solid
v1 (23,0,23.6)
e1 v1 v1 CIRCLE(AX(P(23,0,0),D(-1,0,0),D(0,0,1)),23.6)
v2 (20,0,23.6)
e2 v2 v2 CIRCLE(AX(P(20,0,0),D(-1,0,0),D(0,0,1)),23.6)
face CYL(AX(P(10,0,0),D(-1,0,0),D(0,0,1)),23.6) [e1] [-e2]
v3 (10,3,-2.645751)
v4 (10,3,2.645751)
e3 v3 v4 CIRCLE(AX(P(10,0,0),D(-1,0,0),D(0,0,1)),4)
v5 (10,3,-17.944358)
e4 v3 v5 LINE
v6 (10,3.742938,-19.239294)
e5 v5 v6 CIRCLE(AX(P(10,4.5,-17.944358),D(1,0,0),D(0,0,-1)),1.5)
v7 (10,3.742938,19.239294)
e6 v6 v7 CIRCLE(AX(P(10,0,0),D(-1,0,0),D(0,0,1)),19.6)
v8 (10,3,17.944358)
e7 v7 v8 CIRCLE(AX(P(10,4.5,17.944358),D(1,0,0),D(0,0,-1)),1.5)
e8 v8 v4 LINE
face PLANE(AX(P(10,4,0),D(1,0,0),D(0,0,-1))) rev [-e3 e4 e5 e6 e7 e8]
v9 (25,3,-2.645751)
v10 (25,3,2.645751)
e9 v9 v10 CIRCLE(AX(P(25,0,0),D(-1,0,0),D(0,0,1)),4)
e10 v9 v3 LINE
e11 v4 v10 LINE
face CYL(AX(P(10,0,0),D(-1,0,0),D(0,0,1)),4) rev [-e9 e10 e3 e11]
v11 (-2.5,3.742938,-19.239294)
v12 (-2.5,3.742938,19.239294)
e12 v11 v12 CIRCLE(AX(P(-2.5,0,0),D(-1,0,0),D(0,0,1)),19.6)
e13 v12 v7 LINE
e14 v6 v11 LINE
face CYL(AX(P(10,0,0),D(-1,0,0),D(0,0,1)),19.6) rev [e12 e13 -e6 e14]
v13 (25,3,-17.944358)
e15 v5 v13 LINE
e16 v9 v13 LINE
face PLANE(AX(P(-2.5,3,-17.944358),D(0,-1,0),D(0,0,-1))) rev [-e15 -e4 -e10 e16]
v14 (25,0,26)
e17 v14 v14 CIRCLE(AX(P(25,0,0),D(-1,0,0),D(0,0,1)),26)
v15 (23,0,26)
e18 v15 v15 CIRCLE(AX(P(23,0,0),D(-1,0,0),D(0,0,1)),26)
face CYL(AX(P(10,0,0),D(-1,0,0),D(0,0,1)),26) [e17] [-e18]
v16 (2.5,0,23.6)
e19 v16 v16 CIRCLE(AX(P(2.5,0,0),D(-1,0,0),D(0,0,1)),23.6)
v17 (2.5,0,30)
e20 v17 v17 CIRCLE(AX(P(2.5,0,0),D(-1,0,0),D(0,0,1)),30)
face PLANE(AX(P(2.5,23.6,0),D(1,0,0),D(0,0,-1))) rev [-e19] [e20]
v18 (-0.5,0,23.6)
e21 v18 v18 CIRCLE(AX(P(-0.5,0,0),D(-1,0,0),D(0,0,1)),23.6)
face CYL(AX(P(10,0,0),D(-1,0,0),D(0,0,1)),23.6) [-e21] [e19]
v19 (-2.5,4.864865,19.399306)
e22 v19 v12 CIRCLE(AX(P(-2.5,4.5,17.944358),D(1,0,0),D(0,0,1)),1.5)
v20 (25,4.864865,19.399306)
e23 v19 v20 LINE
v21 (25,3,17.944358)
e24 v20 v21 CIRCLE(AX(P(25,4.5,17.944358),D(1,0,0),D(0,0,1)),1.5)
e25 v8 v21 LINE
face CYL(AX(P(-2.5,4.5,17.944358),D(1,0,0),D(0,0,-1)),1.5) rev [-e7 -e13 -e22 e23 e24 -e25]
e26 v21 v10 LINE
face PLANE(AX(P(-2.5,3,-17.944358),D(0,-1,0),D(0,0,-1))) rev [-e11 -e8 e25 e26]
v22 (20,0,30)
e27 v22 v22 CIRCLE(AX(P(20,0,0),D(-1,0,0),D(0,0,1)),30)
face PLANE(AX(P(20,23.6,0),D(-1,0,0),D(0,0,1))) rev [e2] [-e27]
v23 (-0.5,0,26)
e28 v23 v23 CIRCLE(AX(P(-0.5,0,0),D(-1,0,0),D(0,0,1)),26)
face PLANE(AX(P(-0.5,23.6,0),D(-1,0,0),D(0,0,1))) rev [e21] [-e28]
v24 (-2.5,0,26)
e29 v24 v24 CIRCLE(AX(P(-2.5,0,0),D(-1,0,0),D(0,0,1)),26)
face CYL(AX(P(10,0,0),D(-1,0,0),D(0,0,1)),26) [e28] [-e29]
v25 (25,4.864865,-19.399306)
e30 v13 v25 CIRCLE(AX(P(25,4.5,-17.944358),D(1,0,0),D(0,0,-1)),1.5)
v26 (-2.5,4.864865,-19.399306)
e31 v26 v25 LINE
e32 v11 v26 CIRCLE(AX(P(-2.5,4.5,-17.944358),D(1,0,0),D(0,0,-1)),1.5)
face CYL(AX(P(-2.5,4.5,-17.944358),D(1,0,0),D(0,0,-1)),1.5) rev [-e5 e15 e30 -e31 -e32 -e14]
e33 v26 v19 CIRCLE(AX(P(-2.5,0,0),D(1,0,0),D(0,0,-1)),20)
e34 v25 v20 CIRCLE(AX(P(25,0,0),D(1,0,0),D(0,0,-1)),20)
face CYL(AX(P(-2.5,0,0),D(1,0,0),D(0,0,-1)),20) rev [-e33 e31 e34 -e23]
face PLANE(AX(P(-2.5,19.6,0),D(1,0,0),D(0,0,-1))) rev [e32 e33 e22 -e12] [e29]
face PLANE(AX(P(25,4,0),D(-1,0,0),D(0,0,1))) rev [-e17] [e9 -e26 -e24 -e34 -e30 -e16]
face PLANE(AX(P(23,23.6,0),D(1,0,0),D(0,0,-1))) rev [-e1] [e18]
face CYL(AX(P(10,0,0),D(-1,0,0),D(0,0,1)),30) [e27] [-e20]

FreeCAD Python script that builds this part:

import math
import FreeCAD as App
import Part
import Sketcher

V = App.Vector


def add_polygon(sketch, points):
    """Adds a closed chain of lines whose ends are joined by coincident constraints."""
    first, n = sketch.GeometryCount, len(points)
    for a, b in zip(points, points[1:] + points[:1]):
        sketch.addGeometry(Part.LineSegment(App.Vector(*a, 0), App.Vector(*b, 0)), False)
    for i in range(n):
        sketch.addConstraint(Sketcher.Constraint("Coincident", first + i, 2, first + (i + 1) % n, 1))

doc = App.newDocument("Part")
body = doc.addObject("PartDesign::Body", "Body")

sketch1 = body.newObject("Sketcher::SketchObject", "Sketch")
sketch1.AttachmentSupport = (doc.getObject("XY_Plane"), [""])
sketch1.MapMode = "FlatFace"
add_polygon(sketch1, [(-2.5, 26), (-2.5, 19.6), (10, 19.6), (10, 4), (25, 4), (25, 26), (23, 26), (23, 23.6), (20, 23.6), (20, 30), (2.5, 30), (2.5, 23.6), (-0.5, 23.6), (-0.5, 26)])
sketch1.addConstraint(Sketcher.Constraint("Vertical", 0))
sketch1.addConstraint(Sketcher.Constraint("Horizontal", 1))
sketch1.addConstraint(Sketcher.Constraint("Vertical", 2))
sketch1.addConstraint(Sketcher.Constraint("Horizontal", 3))
sketch1.addConstraint(Sketcher.Constraint("Vertical", 4))
sketch1.addConstraint(Sketcher.Constraint("Horizontal", 5))
sketch1.addConstraint(Sketcher.Constraint("Vertical", 6))
sketch1.addConstraint(Sketcher.Constraint("Horizontal", 7))
sketch1.addConstraint(Sketcher.Constraint("Vertical", 8))
sketch1.addConstraint(Sketcher.Constraint("Horizontal", 9))
sketch1.addConstraint(Sketcher.Constraint("Vertical", 10))
sketch1.addConstraint(Sketcher.Constraint("Horizontal", 11))
sketch1.addConstraint(Sketcher.Constraint("Vertical", 12))
sketch1.addConstraint(Sketcher.Constraint("Horizontal", 13))
sketch1.addConstraint(Sketcher.Constraint("Horizontal", 7, 2, 10, 2))
sketch1.addConstraint(Sketcher.Constraint("Horizontal", 5, 2, 12, 2))
sketch1.addConstraint(Sketcher.Constraint("Equal", 7, 11))
sketch1.addConstraint(Sketcher.Constraint("Equal", 5, 13))
sketch1.addConstraint(Sketcher.Constraint("Equal", 0, 8))
sketch1.addConstraint(Sketcher.Constraint("DistanceX", 3, 1, 3, 2, 15.0))
sketch1.addConstraint(Sketcher.Constraint("DistanceX", 5, 2, 5, 1, 2.0))
sketch1.addConstraint(Sketcher.Constraint("DistanceX", 7, 2, 7, 1, 3.0))
sketch1.addConstraint(Sketcher.Constraint("DistanceY", 4, 1, 4, 2, 22.0))
sketch1.addConstraint(Sketcher.Constraint("DistanceX", 1, 1, 1, 2, 12.5))
sketch1.addConstraint(Sketcher.Constraint("DistanceY", 0, 2, 0, 1, 6.4))
sketch1.addConstraint(Sketcher.Constraint("DistanceY", 6, 2, 6, 1, 2.4))
sketch1.addConstraint(Sketcher.Constraint("DistanceX", -1, 1, 1, 2, 10.0))
sketch1.addConstraint(Sketcher.Constraint("DistanceY", -1, 1, 2, 2, 4.0))
revolution = body.newObject("PartDesign::Revolution", "Revolution")
revolution.Profile = sketch1
revolution.ReferenceAxis = (sketch1, ["H_Axis"])
revolution.Angle = 360

sketch2 = body.newObject("Sketcher::SketchObject", "Sketch001")
sketch2.AttachmentSupport = (doc.getObject("YZ_Plane"), [""])
sketch2.MapMode = "FlatFace"
sketch2.AttachmentOffset = App.Placement(V(0, 0, 25), App.Rotation())
sketch2.addGeometry(Part.LineSegment(V(3, 17.9, 0), V(3, -17.9, 0)), False)
sketch2.addGeometry(Part.ArcOfCircle(Part.Circle(V(4.5, -17.9, 0), V(0, 0, 1), 1.5), math.radians(180), math.radians(284)), False)
sketch2.addGeometry(Part.ArcOfCircle(Part.Circle(V(0, 0, 0), V(0, 0, 1), 20), math.radians(-76), math.radians(76)), False)
sketch2.addGeometry(Part.ArcOfCircle(Part.Circle(V(4.5, 17.9, 0), V(0, 0, 1), 1.5), math.radians(76), math.radians(180)), False)
sketch2.addConstraint(Sketcher.Constraint("Tangent", 0, 2, 1, 1))
sketch2.addConstraint(Sketcher.Constraint("Tangent", 1, 2, 2, 1))
sketch2.addConstraint(Sketcher.Constraint("Tangent", 2, 2, 3, 1))
sketch2.addConstraint(Sketcher.Constraint("Tangent", 3, 2, 0, 1))
sketch2.addConstraint(Sketcher.Constraint("Vertical", 0))
sketch2.addConstraint(Sketcher.Constraint("Coincident", 2, 3, -1, 1))
sketch2.addConstraint(Sketcher.Constraint("Equal", 1, 3))
sketch2.addConstraint(Sketcher.Constraint("Radius", 2, 20.0))
sketch2.addConstraint(Sketcher.Constraint("Radius", 1, 1.5))
sketch2.addConstraint(Sketcher.Constraint("DistanceX", -1, 1, 0, 2, 3.0))
pocket1 = body.newObject("PartDesign::Pocket", "Pocket")
pocket1.Profile = sketch2
pocket1.Type = "ThroughAll"

doc.recompute()
